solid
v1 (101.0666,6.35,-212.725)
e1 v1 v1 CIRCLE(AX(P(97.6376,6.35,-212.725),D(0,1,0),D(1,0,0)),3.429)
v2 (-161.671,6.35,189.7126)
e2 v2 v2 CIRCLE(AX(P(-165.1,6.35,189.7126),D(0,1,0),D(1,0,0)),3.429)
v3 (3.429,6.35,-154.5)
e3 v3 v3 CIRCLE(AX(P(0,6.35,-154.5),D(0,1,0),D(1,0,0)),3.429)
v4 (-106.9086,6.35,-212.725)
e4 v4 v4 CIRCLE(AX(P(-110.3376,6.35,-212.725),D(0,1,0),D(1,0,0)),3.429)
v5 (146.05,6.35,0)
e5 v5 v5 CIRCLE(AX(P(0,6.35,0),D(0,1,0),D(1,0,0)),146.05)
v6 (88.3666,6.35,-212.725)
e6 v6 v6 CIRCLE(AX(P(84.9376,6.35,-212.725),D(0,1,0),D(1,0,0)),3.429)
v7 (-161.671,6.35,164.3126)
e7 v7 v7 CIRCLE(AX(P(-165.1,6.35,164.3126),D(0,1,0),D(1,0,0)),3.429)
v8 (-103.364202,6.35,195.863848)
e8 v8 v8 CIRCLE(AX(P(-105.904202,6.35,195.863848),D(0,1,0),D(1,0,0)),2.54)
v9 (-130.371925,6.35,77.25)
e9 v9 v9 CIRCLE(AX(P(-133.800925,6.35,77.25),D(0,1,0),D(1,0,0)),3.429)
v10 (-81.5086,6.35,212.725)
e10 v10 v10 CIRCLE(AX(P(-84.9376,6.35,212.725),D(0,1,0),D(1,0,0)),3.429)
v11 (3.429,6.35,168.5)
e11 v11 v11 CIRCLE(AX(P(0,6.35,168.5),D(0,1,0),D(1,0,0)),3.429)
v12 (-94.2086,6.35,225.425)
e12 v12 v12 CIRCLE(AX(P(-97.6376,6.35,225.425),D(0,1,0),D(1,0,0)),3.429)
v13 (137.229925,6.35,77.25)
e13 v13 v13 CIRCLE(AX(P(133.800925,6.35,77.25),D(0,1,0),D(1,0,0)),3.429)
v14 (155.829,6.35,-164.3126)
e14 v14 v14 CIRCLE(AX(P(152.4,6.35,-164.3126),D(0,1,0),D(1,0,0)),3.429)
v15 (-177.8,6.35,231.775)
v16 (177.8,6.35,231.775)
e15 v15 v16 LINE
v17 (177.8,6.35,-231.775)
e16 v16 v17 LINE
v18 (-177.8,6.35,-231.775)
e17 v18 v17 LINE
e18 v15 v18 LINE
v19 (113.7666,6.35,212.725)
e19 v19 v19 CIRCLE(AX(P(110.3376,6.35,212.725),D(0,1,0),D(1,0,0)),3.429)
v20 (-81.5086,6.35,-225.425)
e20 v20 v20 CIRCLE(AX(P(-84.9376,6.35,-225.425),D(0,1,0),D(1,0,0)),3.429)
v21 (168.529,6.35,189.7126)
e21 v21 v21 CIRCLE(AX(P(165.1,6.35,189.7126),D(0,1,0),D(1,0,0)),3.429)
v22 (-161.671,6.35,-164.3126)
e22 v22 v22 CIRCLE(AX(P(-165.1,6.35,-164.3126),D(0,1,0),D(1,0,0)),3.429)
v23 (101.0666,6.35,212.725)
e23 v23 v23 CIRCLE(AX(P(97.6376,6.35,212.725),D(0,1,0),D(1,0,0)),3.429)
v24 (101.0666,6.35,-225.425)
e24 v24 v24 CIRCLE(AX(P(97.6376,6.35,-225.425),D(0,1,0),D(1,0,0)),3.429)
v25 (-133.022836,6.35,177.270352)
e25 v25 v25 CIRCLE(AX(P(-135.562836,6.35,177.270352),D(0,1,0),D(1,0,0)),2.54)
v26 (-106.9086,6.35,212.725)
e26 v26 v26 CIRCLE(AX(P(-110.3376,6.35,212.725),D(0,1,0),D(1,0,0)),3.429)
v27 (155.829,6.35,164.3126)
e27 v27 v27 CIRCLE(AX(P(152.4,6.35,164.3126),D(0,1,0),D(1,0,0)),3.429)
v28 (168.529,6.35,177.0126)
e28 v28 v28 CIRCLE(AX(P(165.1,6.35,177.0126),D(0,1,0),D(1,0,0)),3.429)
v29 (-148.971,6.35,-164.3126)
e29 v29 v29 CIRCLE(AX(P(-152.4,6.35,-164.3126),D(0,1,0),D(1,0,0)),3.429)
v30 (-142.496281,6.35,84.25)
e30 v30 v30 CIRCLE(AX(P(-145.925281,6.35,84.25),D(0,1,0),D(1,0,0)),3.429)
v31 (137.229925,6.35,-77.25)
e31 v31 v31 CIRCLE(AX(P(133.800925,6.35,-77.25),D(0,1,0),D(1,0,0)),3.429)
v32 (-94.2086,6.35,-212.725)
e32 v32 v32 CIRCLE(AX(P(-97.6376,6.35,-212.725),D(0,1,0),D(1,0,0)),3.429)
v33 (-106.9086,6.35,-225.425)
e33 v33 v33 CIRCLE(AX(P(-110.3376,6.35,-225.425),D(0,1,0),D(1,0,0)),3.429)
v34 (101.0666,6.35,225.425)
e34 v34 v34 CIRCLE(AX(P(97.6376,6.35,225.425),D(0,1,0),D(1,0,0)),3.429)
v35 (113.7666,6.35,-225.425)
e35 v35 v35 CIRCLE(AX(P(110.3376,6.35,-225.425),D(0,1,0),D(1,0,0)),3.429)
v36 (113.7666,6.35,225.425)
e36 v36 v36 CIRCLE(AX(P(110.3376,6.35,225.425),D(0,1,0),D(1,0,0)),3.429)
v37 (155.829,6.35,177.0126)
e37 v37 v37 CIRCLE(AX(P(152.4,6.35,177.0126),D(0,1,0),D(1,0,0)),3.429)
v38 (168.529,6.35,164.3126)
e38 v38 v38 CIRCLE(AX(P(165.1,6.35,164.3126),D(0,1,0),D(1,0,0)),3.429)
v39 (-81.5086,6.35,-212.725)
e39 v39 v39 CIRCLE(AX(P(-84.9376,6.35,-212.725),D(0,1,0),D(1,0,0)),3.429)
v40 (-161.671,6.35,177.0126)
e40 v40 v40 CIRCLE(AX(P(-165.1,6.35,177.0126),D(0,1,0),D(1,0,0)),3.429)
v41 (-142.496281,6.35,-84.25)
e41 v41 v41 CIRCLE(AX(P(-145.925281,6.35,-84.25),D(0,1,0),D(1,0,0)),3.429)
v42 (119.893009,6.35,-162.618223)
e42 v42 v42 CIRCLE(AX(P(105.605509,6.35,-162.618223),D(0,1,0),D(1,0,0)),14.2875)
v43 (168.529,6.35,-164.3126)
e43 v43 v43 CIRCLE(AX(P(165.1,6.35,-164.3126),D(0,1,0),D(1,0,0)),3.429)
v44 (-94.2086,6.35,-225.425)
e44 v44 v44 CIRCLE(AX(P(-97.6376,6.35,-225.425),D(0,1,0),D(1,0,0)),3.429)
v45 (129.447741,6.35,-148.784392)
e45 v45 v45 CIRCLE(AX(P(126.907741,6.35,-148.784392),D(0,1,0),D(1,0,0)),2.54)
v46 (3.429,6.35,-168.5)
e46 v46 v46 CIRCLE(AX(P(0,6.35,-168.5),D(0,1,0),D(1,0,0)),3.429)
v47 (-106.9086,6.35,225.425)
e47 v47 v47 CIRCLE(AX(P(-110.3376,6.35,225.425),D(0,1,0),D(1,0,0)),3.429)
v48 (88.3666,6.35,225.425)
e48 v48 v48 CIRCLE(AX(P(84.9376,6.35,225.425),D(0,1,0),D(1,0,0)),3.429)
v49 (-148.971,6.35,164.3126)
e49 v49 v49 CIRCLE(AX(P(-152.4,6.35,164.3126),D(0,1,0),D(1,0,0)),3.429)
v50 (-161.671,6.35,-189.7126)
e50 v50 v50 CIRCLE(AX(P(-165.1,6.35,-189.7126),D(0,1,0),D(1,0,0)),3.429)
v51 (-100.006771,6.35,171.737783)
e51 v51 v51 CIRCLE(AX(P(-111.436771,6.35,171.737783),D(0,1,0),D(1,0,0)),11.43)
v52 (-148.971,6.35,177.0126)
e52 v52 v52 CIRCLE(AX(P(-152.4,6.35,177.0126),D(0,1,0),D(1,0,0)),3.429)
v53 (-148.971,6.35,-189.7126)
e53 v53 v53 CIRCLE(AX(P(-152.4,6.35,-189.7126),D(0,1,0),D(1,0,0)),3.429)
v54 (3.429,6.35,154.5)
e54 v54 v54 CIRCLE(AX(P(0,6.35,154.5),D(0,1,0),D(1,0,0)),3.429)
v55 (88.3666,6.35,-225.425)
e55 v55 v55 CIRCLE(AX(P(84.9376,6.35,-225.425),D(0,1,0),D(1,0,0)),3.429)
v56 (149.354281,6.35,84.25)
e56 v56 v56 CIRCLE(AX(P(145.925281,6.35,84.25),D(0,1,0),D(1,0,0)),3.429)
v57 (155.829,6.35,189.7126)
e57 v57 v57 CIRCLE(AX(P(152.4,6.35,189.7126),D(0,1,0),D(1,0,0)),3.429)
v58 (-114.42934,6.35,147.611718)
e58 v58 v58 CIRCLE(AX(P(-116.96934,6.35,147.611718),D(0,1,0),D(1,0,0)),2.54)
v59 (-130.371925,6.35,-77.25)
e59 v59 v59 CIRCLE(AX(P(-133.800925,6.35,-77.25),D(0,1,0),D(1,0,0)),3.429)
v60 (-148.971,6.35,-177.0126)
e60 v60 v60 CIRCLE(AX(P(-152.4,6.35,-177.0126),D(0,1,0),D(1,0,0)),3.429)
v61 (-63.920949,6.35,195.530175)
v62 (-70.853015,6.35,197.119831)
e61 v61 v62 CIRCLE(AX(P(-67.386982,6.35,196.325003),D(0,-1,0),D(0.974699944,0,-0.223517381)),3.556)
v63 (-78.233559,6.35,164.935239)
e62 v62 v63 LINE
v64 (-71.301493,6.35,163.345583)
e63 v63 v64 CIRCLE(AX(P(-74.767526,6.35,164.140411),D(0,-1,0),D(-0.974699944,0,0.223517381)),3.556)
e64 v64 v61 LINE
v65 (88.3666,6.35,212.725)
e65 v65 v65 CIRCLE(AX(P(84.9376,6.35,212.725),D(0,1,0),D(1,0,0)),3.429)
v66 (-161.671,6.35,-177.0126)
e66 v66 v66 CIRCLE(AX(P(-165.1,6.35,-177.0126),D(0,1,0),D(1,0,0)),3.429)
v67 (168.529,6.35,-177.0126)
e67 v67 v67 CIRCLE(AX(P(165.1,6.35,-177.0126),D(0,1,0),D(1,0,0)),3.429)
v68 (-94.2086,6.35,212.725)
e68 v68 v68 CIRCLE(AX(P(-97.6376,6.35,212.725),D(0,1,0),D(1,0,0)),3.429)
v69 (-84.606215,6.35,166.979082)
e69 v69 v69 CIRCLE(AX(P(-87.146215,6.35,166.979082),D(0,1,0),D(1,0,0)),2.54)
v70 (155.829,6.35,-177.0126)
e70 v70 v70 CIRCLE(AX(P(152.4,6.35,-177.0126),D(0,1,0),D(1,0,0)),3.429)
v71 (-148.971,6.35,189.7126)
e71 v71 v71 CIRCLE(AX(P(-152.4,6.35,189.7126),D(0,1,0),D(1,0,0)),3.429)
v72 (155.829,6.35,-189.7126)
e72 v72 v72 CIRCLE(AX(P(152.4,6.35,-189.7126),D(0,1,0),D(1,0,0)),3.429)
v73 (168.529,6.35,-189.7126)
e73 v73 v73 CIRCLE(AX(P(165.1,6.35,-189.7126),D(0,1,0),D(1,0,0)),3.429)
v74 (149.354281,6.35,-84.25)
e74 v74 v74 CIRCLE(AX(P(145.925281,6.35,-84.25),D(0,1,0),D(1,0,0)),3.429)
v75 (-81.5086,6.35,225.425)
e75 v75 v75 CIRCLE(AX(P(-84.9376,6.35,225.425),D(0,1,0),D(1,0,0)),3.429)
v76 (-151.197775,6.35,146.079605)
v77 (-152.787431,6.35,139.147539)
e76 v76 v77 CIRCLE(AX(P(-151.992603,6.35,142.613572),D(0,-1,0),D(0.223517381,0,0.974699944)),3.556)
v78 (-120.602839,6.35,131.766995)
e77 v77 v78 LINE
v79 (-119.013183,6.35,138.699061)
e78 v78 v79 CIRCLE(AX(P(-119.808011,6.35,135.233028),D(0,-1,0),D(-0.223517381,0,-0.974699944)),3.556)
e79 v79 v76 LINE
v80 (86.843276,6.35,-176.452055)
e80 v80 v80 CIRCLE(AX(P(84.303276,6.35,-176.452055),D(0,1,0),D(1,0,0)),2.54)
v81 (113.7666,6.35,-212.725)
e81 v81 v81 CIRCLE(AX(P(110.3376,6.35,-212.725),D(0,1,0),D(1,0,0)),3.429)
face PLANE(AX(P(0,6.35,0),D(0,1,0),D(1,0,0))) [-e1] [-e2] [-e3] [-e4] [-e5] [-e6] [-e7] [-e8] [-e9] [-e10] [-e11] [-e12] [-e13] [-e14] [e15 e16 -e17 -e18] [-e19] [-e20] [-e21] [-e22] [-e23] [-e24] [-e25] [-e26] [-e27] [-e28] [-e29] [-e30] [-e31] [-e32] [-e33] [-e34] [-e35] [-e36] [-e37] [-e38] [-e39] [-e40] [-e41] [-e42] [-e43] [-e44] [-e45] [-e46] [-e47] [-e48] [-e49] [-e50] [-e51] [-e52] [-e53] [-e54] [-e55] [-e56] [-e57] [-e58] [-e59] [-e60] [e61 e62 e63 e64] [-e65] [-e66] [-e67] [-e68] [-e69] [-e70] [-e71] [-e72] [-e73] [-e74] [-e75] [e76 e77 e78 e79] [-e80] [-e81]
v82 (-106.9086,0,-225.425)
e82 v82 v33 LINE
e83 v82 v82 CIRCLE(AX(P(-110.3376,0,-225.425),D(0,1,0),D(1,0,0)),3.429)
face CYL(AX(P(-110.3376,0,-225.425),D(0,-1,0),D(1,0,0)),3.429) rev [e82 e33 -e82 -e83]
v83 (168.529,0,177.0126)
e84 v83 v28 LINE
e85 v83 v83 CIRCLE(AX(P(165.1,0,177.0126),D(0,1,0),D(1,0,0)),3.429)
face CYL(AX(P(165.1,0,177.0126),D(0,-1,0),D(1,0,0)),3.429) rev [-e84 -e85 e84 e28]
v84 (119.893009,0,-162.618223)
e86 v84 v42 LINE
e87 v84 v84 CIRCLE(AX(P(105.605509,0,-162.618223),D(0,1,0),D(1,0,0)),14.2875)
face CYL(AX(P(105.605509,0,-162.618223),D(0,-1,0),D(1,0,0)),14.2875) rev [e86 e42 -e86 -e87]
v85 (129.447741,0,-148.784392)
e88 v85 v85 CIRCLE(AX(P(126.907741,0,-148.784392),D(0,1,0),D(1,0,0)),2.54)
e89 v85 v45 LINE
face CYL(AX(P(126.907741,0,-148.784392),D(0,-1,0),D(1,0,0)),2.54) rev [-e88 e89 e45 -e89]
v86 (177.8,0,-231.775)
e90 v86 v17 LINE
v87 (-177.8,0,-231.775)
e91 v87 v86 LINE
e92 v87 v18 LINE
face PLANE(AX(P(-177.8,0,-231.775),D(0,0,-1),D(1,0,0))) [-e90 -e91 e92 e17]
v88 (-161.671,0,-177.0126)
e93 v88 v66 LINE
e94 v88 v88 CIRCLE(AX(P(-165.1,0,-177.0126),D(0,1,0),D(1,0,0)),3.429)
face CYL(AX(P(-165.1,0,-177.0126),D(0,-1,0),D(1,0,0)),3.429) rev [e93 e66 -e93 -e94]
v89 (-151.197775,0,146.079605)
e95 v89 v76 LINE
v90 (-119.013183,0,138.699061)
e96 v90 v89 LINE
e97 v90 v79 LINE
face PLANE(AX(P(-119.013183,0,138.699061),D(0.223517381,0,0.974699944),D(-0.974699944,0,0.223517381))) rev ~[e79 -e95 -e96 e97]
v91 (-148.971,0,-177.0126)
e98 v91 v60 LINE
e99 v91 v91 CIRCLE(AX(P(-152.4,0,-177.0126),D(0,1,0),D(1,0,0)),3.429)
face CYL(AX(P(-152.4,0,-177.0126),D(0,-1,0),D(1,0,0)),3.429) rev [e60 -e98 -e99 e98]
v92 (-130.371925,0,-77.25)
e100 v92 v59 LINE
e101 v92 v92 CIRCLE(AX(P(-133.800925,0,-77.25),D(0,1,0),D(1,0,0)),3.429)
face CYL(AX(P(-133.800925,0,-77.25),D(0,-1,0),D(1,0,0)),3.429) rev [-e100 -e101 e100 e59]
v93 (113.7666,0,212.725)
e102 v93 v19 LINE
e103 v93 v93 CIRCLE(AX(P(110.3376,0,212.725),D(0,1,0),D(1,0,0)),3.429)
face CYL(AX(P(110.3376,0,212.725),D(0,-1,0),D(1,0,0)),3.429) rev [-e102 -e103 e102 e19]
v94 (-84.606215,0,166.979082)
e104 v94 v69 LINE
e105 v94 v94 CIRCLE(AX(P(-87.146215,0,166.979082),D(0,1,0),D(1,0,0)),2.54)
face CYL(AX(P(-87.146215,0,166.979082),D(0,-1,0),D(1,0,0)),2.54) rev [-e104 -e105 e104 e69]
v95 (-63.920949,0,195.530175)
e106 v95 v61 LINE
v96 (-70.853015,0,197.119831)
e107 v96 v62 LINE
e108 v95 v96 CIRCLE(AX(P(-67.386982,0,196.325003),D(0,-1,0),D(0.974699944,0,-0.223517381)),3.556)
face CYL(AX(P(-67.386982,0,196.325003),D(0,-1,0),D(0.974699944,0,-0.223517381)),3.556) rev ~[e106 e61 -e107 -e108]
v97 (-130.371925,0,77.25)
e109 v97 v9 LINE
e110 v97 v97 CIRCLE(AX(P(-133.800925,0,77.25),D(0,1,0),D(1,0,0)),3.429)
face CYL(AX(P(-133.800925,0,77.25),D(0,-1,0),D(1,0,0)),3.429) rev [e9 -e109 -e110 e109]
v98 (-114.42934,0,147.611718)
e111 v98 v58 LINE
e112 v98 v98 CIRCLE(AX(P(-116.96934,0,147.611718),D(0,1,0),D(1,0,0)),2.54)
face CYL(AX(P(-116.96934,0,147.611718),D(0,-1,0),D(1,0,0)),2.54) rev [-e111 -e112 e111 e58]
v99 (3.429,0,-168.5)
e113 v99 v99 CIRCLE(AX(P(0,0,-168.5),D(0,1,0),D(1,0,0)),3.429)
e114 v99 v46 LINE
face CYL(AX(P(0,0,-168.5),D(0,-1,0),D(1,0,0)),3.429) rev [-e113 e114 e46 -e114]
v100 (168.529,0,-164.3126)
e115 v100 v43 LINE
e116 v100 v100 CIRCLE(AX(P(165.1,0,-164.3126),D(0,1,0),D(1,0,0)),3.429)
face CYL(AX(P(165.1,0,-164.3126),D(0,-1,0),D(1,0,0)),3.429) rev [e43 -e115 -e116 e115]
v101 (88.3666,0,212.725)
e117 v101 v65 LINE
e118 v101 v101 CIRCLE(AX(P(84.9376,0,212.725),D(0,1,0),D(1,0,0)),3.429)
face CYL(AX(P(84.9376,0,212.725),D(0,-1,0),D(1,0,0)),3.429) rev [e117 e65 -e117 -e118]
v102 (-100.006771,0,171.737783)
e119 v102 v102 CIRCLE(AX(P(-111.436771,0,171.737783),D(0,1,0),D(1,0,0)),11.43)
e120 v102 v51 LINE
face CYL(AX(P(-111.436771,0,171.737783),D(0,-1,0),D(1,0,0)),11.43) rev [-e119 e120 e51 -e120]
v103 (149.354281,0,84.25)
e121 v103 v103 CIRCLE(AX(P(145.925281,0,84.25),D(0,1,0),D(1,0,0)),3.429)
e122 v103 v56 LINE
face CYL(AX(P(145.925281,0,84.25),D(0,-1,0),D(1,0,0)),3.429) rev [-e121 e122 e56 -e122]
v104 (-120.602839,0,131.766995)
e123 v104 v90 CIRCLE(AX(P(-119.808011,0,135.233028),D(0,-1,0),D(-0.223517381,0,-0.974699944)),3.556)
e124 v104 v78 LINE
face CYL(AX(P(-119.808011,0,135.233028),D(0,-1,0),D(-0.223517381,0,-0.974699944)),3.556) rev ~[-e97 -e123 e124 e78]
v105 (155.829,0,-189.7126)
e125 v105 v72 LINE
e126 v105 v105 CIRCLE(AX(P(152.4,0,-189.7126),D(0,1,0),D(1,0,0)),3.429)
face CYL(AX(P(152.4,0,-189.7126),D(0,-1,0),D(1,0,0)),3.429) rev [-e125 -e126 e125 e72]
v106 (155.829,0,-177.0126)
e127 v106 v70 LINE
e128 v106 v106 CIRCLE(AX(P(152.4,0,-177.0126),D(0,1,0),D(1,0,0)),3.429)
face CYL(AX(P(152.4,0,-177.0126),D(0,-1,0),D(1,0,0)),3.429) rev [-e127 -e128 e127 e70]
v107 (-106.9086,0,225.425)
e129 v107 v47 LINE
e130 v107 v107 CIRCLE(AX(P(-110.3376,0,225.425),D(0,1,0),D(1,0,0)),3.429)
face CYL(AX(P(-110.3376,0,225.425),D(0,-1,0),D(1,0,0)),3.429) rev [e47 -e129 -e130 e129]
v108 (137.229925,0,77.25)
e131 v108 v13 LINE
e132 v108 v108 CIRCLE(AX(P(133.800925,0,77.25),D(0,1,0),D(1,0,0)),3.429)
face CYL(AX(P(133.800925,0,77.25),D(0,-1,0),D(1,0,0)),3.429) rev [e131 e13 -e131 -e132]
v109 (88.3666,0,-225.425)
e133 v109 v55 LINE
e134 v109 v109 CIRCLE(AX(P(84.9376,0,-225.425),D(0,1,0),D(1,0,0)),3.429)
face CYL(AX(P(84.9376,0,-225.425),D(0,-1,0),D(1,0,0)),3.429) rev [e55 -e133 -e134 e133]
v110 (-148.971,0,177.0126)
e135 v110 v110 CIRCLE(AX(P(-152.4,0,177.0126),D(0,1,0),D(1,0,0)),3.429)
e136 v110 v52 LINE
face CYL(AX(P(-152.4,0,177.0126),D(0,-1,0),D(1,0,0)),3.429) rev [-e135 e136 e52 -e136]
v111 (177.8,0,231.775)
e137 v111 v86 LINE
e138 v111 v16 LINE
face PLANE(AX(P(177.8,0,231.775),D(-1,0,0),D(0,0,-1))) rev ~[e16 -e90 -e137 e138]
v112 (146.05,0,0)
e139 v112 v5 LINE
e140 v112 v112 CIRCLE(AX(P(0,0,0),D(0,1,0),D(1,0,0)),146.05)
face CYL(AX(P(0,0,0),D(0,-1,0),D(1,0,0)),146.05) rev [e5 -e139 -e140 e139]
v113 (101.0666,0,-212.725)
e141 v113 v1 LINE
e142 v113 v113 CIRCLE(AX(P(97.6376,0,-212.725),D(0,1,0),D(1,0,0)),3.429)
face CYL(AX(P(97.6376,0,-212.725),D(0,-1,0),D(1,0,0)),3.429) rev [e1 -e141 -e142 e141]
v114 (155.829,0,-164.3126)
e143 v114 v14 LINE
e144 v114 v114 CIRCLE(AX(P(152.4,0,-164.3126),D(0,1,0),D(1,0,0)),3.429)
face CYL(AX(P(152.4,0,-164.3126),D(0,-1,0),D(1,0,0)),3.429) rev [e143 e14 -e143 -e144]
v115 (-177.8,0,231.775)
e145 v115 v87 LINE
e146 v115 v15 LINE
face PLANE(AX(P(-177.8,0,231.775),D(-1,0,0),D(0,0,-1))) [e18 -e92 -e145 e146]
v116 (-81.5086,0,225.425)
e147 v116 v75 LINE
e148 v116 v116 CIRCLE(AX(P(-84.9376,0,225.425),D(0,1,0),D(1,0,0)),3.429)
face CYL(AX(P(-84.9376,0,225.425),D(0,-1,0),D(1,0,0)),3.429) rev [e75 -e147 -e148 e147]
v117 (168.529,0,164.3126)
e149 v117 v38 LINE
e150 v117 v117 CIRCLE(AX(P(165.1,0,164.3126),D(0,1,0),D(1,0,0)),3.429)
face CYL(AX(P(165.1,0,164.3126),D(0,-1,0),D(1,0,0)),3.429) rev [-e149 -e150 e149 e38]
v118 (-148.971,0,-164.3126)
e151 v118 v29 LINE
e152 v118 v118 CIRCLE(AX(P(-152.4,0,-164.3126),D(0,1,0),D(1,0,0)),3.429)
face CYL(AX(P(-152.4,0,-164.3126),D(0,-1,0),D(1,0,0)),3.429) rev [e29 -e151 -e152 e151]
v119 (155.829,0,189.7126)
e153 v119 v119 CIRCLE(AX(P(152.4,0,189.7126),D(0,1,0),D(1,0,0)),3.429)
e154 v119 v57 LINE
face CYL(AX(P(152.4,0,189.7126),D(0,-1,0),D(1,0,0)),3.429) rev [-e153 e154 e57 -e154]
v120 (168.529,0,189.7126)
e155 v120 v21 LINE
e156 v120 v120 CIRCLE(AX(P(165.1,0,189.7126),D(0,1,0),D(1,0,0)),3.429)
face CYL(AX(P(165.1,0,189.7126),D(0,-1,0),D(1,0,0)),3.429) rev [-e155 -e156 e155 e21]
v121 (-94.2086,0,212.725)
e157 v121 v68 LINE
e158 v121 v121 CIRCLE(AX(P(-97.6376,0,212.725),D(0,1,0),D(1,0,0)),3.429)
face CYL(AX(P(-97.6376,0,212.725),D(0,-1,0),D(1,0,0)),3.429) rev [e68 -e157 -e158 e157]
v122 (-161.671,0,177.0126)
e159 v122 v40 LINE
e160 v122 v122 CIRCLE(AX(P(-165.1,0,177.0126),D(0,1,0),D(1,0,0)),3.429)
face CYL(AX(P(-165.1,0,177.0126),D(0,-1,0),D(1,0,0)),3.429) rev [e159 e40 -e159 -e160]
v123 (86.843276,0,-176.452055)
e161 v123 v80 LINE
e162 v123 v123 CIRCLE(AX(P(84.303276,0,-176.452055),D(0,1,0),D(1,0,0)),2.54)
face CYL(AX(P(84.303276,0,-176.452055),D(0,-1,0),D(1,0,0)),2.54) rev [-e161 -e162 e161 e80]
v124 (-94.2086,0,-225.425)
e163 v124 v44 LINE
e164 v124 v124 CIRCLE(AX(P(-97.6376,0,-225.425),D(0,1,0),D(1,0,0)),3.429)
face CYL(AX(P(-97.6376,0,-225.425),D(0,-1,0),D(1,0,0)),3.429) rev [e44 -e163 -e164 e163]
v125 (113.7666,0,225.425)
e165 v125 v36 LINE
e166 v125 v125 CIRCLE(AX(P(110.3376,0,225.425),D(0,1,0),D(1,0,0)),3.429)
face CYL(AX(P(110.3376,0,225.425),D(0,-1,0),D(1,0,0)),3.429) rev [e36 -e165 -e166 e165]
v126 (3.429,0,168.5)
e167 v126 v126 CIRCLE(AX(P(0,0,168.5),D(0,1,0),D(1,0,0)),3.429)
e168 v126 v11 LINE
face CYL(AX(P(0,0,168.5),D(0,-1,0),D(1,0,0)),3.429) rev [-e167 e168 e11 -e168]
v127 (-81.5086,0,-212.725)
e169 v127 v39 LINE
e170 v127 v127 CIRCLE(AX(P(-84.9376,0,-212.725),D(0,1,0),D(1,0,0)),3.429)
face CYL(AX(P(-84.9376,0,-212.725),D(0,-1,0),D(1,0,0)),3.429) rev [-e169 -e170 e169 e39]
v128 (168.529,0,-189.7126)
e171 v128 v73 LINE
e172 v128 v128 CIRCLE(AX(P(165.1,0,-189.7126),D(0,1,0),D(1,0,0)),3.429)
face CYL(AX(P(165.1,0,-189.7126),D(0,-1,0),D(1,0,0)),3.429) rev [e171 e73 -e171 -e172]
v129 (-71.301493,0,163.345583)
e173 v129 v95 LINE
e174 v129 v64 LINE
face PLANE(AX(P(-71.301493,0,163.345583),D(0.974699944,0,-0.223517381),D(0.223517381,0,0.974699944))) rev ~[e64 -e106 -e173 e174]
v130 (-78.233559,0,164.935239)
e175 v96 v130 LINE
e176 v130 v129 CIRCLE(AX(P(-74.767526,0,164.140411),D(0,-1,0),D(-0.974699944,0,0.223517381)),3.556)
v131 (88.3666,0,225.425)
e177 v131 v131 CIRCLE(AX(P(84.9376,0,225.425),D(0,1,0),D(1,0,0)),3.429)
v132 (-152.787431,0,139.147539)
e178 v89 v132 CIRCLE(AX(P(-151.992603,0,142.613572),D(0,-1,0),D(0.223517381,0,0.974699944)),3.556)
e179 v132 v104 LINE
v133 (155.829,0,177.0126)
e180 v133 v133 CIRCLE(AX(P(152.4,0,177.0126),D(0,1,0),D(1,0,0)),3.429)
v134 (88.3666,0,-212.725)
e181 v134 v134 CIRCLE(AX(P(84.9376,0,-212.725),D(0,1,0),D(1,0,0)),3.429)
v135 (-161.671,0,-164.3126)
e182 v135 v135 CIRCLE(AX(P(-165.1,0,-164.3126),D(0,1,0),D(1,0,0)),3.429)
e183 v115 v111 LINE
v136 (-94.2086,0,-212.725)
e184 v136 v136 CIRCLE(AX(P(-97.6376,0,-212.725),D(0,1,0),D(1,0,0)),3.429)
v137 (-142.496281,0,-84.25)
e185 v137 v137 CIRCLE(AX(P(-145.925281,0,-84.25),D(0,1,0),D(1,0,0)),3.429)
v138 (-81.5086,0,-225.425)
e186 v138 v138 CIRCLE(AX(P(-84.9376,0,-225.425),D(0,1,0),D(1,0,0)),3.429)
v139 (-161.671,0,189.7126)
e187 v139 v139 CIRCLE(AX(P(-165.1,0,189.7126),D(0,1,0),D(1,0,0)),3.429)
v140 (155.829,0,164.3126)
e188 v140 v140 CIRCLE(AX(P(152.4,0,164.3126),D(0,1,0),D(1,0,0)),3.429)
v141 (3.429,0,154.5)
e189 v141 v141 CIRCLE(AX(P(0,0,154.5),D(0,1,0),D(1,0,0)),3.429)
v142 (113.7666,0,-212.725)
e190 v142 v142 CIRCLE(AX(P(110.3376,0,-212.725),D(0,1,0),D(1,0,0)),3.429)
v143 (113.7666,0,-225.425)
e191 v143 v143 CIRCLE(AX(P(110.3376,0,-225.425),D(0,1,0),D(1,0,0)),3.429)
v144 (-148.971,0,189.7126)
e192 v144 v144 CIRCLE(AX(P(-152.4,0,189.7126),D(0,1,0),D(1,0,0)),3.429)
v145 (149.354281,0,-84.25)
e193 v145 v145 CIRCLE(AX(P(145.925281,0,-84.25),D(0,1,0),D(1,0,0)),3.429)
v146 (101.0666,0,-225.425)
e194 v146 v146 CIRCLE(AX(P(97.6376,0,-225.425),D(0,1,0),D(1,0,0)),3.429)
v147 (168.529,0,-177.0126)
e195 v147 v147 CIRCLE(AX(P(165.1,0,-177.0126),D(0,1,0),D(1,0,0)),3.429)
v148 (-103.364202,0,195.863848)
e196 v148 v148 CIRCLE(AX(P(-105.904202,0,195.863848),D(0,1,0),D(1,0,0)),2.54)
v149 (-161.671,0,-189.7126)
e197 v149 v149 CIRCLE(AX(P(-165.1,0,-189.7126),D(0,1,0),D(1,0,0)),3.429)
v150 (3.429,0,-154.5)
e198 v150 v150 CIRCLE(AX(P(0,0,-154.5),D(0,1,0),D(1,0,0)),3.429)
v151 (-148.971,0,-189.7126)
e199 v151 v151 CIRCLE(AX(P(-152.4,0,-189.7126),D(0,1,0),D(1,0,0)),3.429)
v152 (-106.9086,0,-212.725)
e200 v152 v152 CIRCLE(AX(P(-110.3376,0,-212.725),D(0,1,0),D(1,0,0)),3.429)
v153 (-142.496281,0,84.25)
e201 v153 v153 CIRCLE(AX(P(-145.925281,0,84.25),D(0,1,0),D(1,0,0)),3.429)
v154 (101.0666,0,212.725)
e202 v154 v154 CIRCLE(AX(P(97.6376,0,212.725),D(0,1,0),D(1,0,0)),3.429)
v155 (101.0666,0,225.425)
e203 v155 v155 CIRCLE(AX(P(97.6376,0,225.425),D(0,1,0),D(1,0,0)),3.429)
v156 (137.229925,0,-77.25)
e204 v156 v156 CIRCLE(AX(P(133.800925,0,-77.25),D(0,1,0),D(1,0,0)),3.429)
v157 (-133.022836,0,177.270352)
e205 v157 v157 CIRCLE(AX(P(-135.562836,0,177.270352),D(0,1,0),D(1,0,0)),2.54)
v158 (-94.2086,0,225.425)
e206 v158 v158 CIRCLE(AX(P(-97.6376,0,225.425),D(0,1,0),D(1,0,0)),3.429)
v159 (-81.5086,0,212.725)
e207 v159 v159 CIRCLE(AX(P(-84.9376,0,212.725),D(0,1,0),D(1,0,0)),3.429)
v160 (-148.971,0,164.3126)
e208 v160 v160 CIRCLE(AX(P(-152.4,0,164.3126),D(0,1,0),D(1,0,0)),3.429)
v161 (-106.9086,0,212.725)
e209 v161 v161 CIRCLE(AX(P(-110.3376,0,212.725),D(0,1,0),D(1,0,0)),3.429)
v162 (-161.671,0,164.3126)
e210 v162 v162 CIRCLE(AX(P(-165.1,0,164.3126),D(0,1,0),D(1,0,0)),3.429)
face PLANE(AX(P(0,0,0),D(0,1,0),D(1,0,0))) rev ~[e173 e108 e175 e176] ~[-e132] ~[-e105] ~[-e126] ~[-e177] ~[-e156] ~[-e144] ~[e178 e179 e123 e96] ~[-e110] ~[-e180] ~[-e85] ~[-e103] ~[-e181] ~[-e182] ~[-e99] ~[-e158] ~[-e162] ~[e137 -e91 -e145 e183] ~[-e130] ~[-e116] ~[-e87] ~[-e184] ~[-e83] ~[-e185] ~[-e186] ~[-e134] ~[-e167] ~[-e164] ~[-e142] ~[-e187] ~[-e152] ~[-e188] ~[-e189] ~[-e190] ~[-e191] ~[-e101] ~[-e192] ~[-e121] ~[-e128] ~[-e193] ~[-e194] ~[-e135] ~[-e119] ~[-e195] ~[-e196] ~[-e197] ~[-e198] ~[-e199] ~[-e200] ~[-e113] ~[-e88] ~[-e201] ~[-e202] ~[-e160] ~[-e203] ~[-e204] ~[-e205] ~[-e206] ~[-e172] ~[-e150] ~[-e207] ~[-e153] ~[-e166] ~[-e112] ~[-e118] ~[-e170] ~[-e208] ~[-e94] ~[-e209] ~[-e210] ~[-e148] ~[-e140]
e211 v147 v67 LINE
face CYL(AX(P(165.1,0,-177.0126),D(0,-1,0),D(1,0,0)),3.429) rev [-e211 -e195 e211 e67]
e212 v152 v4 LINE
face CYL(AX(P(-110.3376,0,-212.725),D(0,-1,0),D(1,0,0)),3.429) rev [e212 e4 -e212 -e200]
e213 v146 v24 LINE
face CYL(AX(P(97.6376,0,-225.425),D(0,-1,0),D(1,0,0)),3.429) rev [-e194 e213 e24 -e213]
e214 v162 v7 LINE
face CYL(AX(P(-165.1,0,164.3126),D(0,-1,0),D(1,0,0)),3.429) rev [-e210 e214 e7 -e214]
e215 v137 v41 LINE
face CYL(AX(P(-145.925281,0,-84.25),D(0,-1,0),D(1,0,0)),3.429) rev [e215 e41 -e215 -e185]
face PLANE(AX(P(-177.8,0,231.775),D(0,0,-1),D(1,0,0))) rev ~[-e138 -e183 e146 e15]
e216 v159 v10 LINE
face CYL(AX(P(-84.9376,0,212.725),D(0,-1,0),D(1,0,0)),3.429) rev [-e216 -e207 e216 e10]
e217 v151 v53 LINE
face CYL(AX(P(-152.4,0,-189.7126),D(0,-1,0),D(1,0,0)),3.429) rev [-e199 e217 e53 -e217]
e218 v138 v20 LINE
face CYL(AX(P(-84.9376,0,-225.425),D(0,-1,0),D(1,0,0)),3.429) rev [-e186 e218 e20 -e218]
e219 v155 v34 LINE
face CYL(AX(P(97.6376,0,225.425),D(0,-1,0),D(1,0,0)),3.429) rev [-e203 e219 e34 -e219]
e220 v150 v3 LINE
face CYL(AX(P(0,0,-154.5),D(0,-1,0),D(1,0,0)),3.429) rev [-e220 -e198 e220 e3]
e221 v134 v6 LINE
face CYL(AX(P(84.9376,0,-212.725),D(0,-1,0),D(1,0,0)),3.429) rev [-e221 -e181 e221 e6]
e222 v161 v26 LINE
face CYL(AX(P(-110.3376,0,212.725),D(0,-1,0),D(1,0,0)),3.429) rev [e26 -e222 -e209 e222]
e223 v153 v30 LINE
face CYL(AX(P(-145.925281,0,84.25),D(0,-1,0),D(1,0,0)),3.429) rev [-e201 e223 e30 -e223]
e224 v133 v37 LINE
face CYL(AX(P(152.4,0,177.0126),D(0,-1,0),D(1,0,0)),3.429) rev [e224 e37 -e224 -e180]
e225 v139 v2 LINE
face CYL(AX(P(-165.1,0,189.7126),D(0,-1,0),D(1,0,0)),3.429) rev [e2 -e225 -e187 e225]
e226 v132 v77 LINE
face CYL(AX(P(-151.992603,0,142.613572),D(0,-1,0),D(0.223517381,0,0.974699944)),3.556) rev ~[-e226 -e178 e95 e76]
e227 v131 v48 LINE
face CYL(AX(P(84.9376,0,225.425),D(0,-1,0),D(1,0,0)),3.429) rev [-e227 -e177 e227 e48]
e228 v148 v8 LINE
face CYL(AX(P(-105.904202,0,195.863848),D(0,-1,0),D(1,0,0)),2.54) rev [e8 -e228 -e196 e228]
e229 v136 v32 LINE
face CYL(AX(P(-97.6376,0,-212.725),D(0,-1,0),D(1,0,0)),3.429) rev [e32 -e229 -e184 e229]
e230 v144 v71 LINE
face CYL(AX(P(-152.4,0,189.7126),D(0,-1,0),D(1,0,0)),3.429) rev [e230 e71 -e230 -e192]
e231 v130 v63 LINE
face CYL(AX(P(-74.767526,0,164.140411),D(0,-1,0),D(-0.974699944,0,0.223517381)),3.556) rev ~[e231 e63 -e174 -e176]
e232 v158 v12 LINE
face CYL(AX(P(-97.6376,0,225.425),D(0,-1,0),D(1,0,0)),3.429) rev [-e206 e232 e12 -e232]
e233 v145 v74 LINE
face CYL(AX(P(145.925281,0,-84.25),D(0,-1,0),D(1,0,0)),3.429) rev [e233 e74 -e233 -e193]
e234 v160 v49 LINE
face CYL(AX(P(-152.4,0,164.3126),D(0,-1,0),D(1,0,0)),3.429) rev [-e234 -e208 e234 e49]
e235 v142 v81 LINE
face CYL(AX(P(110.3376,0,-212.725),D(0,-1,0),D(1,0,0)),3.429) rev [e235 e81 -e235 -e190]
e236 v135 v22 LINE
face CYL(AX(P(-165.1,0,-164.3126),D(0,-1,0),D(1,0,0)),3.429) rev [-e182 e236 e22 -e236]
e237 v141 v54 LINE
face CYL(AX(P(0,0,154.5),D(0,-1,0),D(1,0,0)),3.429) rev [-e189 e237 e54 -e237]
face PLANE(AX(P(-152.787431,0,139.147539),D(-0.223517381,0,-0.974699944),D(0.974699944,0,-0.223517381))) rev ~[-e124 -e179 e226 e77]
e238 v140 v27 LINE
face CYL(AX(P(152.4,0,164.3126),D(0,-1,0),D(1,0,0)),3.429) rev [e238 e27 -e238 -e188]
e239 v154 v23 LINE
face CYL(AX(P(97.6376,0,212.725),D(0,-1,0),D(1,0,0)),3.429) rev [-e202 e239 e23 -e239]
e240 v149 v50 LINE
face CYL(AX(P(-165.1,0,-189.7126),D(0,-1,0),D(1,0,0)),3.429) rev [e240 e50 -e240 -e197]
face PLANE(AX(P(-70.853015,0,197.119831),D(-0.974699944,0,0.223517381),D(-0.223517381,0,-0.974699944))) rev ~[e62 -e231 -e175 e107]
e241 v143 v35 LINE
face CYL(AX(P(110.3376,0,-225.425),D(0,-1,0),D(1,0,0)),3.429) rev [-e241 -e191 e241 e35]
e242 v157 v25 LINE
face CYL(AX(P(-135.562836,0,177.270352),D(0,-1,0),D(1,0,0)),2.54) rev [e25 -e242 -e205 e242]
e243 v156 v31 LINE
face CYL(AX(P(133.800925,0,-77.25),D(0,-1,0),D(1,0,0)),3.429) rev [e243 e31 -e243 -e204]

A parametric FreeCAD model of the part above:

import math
import FreeCAD as App
import Part
import Sketcher
Q = App.Units.Quantity


def add_polygon(sketch, points):
    """Adds a closed chain of lines whose ends are joined by coincident constraints."""
    first, n = sketch.GeometryCount, len(points)
    for a, b in zip(points, points[1:] + points[:1]):
        sketch.addGeometry(Part.LineSegment(App.Vector(*a, 0), App.Vector(*b, 0)), False)
    for i in range(n):
        sketch.addConstraint(Sketcher.Constraint("Coincident", first + i, 2, first + (i + 1) % n, 1))

doc = App.newDocument("Part")
params = doc.addObject("Spreadsheet::Sheet", "Params")
for row, (alias, value) in enumerate([
    ("sketch1_diameter", "0.2 in"),
    ("sketch1_diameter2", "0.9 in"),
    ("sketch1_diameter3", "11.5 in"),
    ("sketch1_diameter4", "0.27 in"),
    ("sketch1_width", "14 in"),
    ("pad1_length", "0.25 in"),
], start=1):
    params.set(f"A{row}", alias)
    params.set(f"B{row}", "=" + value)
    params.setAlias(f"B{row}", alias)

body = doc.addObject("PartDesign::Body", "Body")

# Sketch on XZ plane
sketch1 = body.newObject("Sketcher::SketchObject", "Sketch")
sketch1.AttachmentSupport = (doc.getObject("XZ_Plane"), [""])
sketch1.MapMode = "FlatFace"
add_polygon(sketch1, [(-177.8, -231.8), (-177.8, 231.8), (177.8, 231.8), (177.8, -231.8)])  # lines 0-3
sketch1.addGeometry(Part.Circle(App.Vector(-165.1, 189.7, 0), App.Vector(0, 0, 1), 3.4), False)  # 4
sketch1.addGeometry(Part.Circle(App.Vector(-152.4, 189.7, 0), App.Vector(0, 0, 1), 3.4), False)  # 5
sketch1.addGeometry(Part.Circle(App.Vector(-165.1, 177, 0), App.Vector(0, 0, 1), 3.4), False)  # 6
sketch1.addGeometry(Part.Circle(App.Vector(-152.4, 177, 0), App.Vector(0, 0, 1), 3.4), False)  # 7
sketch1.addGeometry(Part.Circle(App.Vector(-135.6, 177.3, 0), App.Vector(0, 0, 1), 2.5), False)  # 8
sketch1.addGeometry(Part.Circle(App.Vector(-110.3, 225.4, 0), App.Vector(0, 0, 1), 3.4), False)  # 9
sketch1.addGeometry(Part.Circle(App.Vector(-110.3, 212.7, 0), App.Vector(0, 0, 1), 3.4), False)  # 10
sketch1.addGeometry(Part.Circle(App.Vector(-97.6, 225.4, 0), App.Vector(0, 0, 1), 3.4), False)  # 11
sketch1.addGeometry(Part.Circle(App.Vector(-84.9, 225.4, 0), App.Vector(0, 0, 1), 3.4), False)  # 12
sketch1.addGeometry(Part.Circle(App.Vector(-97.6, 212.7, 0), App.Vector(0, 0, 1), 3.4), False)  # 13
sketch1.addGeometry(Part.Circle(App.Vector(-84.9, 212.7, 0), App.Vector(0, 0, 1), 3.4), False)  # 14
sketch1.addGeometry(Part.Circle(App.Vector(-105.9, 195.9, 0), App.Vector(0, 0, 1), 2.5), False)  # 15
sketch1.addGeometry(Part.Circle(App.Vector(-111.4, 171.7, 0), App.Vector(0, 0, 1), 11.4), False)  # 16
sketch1.addGeometry(Part.Circle(App.Vector(-165.1, 164.3, 0), App.Vector(0, 0, 1), 3.4), False)  # 17
sketch1.addGeometry(Part.Circle(App.Vector(-152.4, 164.3, 0), App.Vector(0, 0, 1), 3.4), False)  # 18
sketch1.addGeometry(Part.ArcOfCircle(Part.Circle(App.Vector(-119.8, 135.2, 0), App.Vector(0, 0, 1), 3.6), math.radians(-103), math.radians(77)), False)  # 19
sketch1.addGeometry(Part.LineSegment(App.Vector(-119, 138.7, 0), App.Vector(-151.2, 146.1, 0)), False)  # 20
sketch1.addGeometry(Part.ArcOfCircle(Part.Circle(App.Vector(-152, 142.6, 0), App.Vector(0, 0, 1), 3.6), math.radians(77), math.radians(257)), False)  # 21
sketch1.addGeometry(Part.LineSegment(App.Vector(-152.8, 139.1, 0), App.Vector(-120.6, 131.8, 0)), False)  # 22
sketch1.addGeometry(Part.Circle(App.Vector(-117, 147.6, 0), App.Vector(0, 0, 1), 2.5), False)  # 23
sketch1.addGeometry(Part.Circle(App.Vector(-87.1, 167, 0), App.Vector(0, 0, 1), 2.5), False)  # 24
sketch1.addGeometry(Part.ArcOfCircle(Part.Circle(App.Vector(-74.8, 164.1, 0), App.Vector(0, 0, 1), 3.6), math.radians(167), math.radians(347)), False)  # 25
sketch1.addGeometry(Part.LineSegment(App.Vector(-71.3, 163.3, 0), App.Vector(-63.9, 195.5, 0)), False)  # 26
sketch1.addGeometry(Part.ArcOfCircle(Part.Circle(App.Vector(-67.4, 196.3, 0), App.Vector(0, 0, 1), 3.6), math.radians(-13), math.radians(167)), False)  # 27
sketch1.addGeometry(Part.LineSegment(App.Vector(-70.9, 197.1, 0), App.Vector(-78.2, 164.9, 0)), False)  # 28
sketch1.addGeometry(Part.Circle(App.Vector(-145.9, 84.2, 0), App.Vector(0, 0, 1), 3.4), False)  # 29
sketch1.addGeometry(Part.Circle(App.Vector(-133.8, 77.2, 0), App.Vector(0, 0, 1), 3.4), False)  # 30
sketch1.addGeometry(Part.Circle(App.Vector(0, 168.5, 0), App.Vector(0, 0, 1), 3.4), False)  # 31
sketch1.addGeometry(Part.Circle(App.Vector(0, 154.5, 0), App.Vector(0, 0, 1), 3.4), False)  # 32
sketch1.addGeometry(Part.Circle(App.Vector(84.9, 225.4, 0), App.Vector(0, 0, 1), 3.4), False)  # 33
sketch1.addGeometry(Part.Circle(App.Vector(97.6, 225.4, 0), App.Vector(0, 0, 1), 3.4), False)  # 34
sketch1.addGeometry(Part.Circle(App.Vector(84.9, 212.7, 0), App.Vector(0, 0, 1), 3.4), False)  # 35
sketch1.addGeometry(Part.Circle(App.Vector(97.6, 212.7, 0), App.Vector(0, 0, 1), 3.4), False)  # 36
sketch1.addGeometry(Part.Circle(App.Vector(110.3, 225.4, 0), App.Vector(0, 0, 1), 3.4), False)  # 37
sketch1.addGeometry(Part.Circle(App.Vector(110.3, 212.7, 0), App.Vector(0, 0, 1), 3.4), False)  # 38
sketch1.addGeometry(Part.Circle(App.Vector(152.4, 189.7, 0), App.Vector(0, 0, 1), 3.4), False)  # 39
sketch1.addGeometry(Part.Circle(App.Vector(165.1, 189.7, 0), App.Vector(0, 0, 1), 3.4), False)  # 40
sketch1.addGeometry(Part.Circle(App.Vector(152.4, 177, 0), App.Vector(0, 0, 1), 3.4), False)  # 41
sketch1.addGeometry(Part.Circle(App.Vector(165.1, 177, 0), App.Vector(0, 0, 1), 3.4), False)  # 42
sketch1.addGeometry(Part.Circle(App.Vector(152.4, 164.3, 0), App.Vector(0, 0, 1), 3.4), False)  # 43
sketch1.addGeometry(Part.Circle(App.Vector(165.1, 164.3, 0), App.Vector(0, 0, 1), 3.4), False)  # 44
sketch1.addGeometry(Part.Circle(App.Vector(133.8, 77.2, 0), App.Vector(0, 0, 1), 3.4), False)  # 45
sketch1.addGeometry(Part.Circle(App.Vector(145.9, 84.2, 0), App.Vector(0, 0, 1), 3.4), False)  # 46
sketch1.addGeometry(Part.Circle(App.Vector(-145.9, -84.2, 0), App.Vector(0, 0, 1), 3.4), False)  # 47
sketch1.addGeometry(Part.Circle(App.Vector(-133.8, -77.2, 0), App.Vector(0, 0, 1), 3.4), False)  # 48
sketch1.addGeometry(Part.Circle(App.Vector(-165.1, -164.3, 0), App.Vector(0, 0, 1), 3.4), False)  # 49
sketch1.addGeometry(Part.Circle(App.Vector(-152.4, -164.3, 0), App.Vector(0, 0, 1), 3.4), False)  # 50
sketch1.addGeometry(Part.Circle(App.Vector(-165.1, -177, 0), App.Vector(0, 0, 1), 3.4), False)  # 51
sketch1.addGeometry(Part.Circle(App.Vector(-152.4, -177, 0), App.Vector(0, 0, 1), 3.4), False)  # 52
sketch1.addGeometry(Part.Circle(App.Vector(-165.1, -189.7, 0), App.Vector(0, 0, 1), 3.4), False)  # 53
sketch1.addGeometry(Part.Circle(App.Vector(-152.4, -189.7, 0), App.Vector(0, 0, 1), 3.4), False)  # 54
sketch1.addGeometry(Part.Circle(App.Vector(-110.3, -212.7, 0), App.Vector(0, 0, 1), 3.4), False)  # 55
sketch1.addGeometry(Part.Circle(App.Vector(-110.3, -225.4, 0), App.Vector(0, 0, 1), 3.4), False)  # 56
sketch1.addGeometry(Part.Circle(App.Vector(-97.6, -212.7, 0), App.Vector(0, 0, 1), 3.4), False)  # 57
sketch1.addGeometry(Part.Circle(App.Vector(-84.9, -212.7, 0), App.Vector(0, 0, 1), 3.4), False)  # 58
sketch1.addGeometry(Part.Circle(App.Vector(-97.6, -225.4, 0), App.Vector(0, 0, 1), 3.4), False)  # 59
sketch1.addGeometry(Part.Circle(App.Vector(-84.9, -225.4, 0), App.Vector(0, 0, 1), 3.4), False)  # 60
sketch1.addGeometry(Part.Circle(App.Vector(0, 0, 0), App.Vector(0, 0, 1), 146.1), False)  # 61
sketch1.addGeometry(Part.Circle(App.Vector(133.8, -77.2, 0), App.Vector(0, 0, 1), 3.4), False)  # 62
sketch1.addGeometry(Part.Circle(App.Vector(145.9, -84.2, 0), App.Vector(0, 0, 1), 3.4), False)  # 63
sketch1.addGeometry(Part.Circle(App.Vector(0, -154.5, 0), App.Vector(0, 0, 1), 3.4), False)  # 64
sketch1.addGeometry(Part.Circle(App.Vector(0, -168.5, 0), App.Vector(0, 0, 1), 3.4), False)  # 65
sketch1.addGeometry(Part.Circle(App.Vector(105.6, -162.6, 0), App.Vector(0, 0, 1), 14.3), False)  # 66
sketch1.addGeometry(Part.Circle(App.Vector(126.9, -148.8, 0), App.Vector(0, 0, 1), 2.5), False)  # 67
sketch1.addGeometry(Part.Circle(App.Vector(152.4, -164.3, 0), App.Vector(0, 0, 1), 3.4), False)  # 68
sketch1.addGeometry(Part.Circle(App.Vector(165.1, -164.3, 0), App.Vector(0, 0, 1), 3.4), False)  # 69
sketch1.addGeometry(Part.Circle(App.Vector(84.3, -176.5, 0), App.Vector(0, 0, 1), 2.5), False)  # 70
sketch1.addGeometry(Part.Circle(App.Vector(84.9, -212.7, 0), App.Vector(0, 0, 1), 3.4), False)  # 71
sketch1.addGeometry(Part.Circle(App.Vector(97.6, -212.7, 0), App.Vector(0, 0, 1), 3.4), False)  # 72
sketch1.addGeometry(Part.Circle(App.Vector(84.9, -225.4, 0), App.Vector(0, 0, 1), 3.4), False)  # 73
sketch1.addGeometry(Part.Circle(App.Vector(97.6, -225.4, 0), App.Vector(0, 0, 1), 3.4), False)  # 74
sketch1.addGeometry(Part.Circle(App.Vector(110.3, -212.7, 0), App.Vector(0, 0, 1), 3.4), False)  # 75
sketch1.addGeometry(Part.Circle(App.Vector(110.3, -225.4, 0), App.Vector(0, 0, 1), 3.4), False)  # 76
sketch1.addGeometry(Part.Circle(App.Vector(152.4, -177, 0), App.Vector(0, 0, 1), 3.4), False)  # 77
sketch1.addGeometry(Part.Circle(App.Vector(165.1, -177, 0), App.Vector(0, 0, 1), 3.4), False)  # 78
sketch1.addGeometry(Part.Circle(App.Vector(152.4, -189.7, 0), App.Vector(0, 0, 1), 3.4), False)  # 79
sketch1.addGeometry(Part.Circle(App.Vector(165.1, -189.7, 0), App.Vector(0, 0, 1), 3.4), False)  # 80
sketch1.addConstraint([
    Sketcher.Constraint("Tangent", 19, 2, 20, 1),
    Sketcher.Constraint("Tangent", 20, 2, 21, 1),
    Sketcher.Constraint("Tangent", 21, 2, 22, 1),
    Sketcher.Constraint("Tangent", 22, 2, 19, 1),
    Sketcher.Constraint("Tangent", 25, 2, 26, 1),
    Sketcher.Constraint("Tangent", 26, 2, 27, 1),
    Sketcher.Constraint("Tangent", 27, 2, 28, 1),
    Sketcher.Constraint("Tangent", 28, 2, 25, 1),
    Sketcher.Constraint("Vertical", 0),
    Sketcher.Constraint("Horizontal", 1),
    Sketcher.Constraint("Vertical", 2),
    Sketcher.Constraint("Horizontal", 3),
    Sketcher.Constraint("Coincident", 61, 3, -1, 1),
    Sketcher.Constraint("Equal", 4, 5),
    Sketcher.Constraint("Equal", 5, 6),
    Sketcher.Constraint("Equal", 6, 7),
    Sketcher.Constraint("Equal", 7, 9),
    Sketcher.Constraint("Equal", 9, 10),
    Sketcher.Constraint("Equal", 10, 11),
    Sketcher.Constraint("Equal", 11, 12),
    Sketcher.Constraint("Equal", 12, 13),
    Sketcher.Constraint("Equal", 13, 14),
    Sketcher.Constraint("Equal", 8, 15),
    Sketcher.Constraint("Equal", 14, 17),
    Sketcher.Constraint("Equal", 17, 18),
    Sketcher.Constraint("Equal", 19, 21),
    Sketcher.Constraint("Equal", 15, 23),
    Sketcher.Constraint("Equal", 23, 24),
    Sketcher.Constraint("Equal", 21, 25),
    Sketcher.Constraint("Equal", 25, 27),
    Sketcher.Constraint("Equal", 18, 29),
    Sketcher.Constraint("Equal", 29, 30),
    Sketcher.Constraint("Equal", 30, 31),
    Sketcher.Constraint("Equal", 31, 32),
    Sketcher.Constraint("Equal", 32, 33),
    Sketcher.Constraint("Equal", 33, 34),
    Sketcher.Constraint("Equal", 34, 35),
    Sketcher.Constraint("Equal", 35, 36),
    Sketcher.Constraint("Equal", 36, 37),
    Sketcher.Constraint("Equal", 37, 38),
    Sketcher.Constraint("Equal", 38, 39),
    Sketcher.Constraint("Equal", 39, 40),
    Sketcher.Constraint("Equal", 40, 41),
    Sketcher.Constraint("Equal", 41, 42),
    Sketcher.Constraint("Equal", 42, 43),
    Sketcher.Constraint("Equal", 43, 44),
    Sketcher.Constraint("Equal", 44, 45),
    Sketcher.Constraint("Equal", 45, 46),
    Sketcher.Constraint("Equal", 46, 47),
    Sketcher.Constraint("Equal", 47, 48),
    Sketcher.Constraint("Equal", 48, 49),
    Sketcher.Constraint("Equal", 49, 50),
    Sketcher.Constraint("Equal", 50, 51),
    Sketcher.Constraint("Equal", 51, 52),
    Sketcher.Constraint("Equal", 52, 53),
    Sketcher.Constraint("Equal", 53, 54),
    Sketcher.Constraint("Equal", 54, 55),
    Sketcher.Constraint("Equal", 55, 56),
    Sketcher.Constraint("Equal", 56, 57),
    Sketcher.Constraint("Equal", 57, 58),
    Sketcher.Constraint("Equal", 58, 59),
    Sketcher.Constraint("Equal", 59, 60),
    Sketcher.Constraint("Equal", 60, 62),
    Sketcher.Constraint("Equal", 62, 63),
    Sketcher.Constraint("Equal", 63, 64),
    Sketcher.Constraint("Equal", 64, 65),
    Sketcher.Constraint("Equal", 24, 67),
    Sketcher.Constraint("Equal", 65, 68),
    Sketcher.Constraint("Equal", 68, 69),
    Sketcher.Constraint("Equal", 67, 70),
    Sketcher.Constraint("Equal", 69, 71),
    Sketcher.Constraint("Equal", 71, 72),
    Sketcher.Constraint("Equal", 72, 73),
    Sketcher.Constraint("Equal", 73, 74),
    Sketcher.Constraint("Equal", 74, 75),
    Sketcher.Constraint("Equal", 75, 76),
    Sketcher.Constraint("Equal", 76, 77),
    Sketcher.Constraint("Equal", 77, 78),
    Sketcher.Constraint("Equal", 78, 79),
    Sketcher.Constraint("Equal", 79, 80),
    Sketcher.Constraint("Symmetric", 46, 3, 47, 3, -1, 1),
    Sketcher.Constraint("Symmetric", 45, 3, 48, 3, -1, 1),
    Sketcher.Constraint("Symmetric", 44, 3, 49, 3, -1, 1),
    Sketcher.Constraint("Symmetric", 43, 3, 50, 3, -1, 1),
    Sketcher.Constraint("Symmetric", 42, 3, 51, 3, -1, 1),
    Sketcher.Constraint("Symmetric", 41, 3, 52, 3, -1, 1),
    Sketcher.Constraint("Symmetric", 40, 3, 53, 3, -1, 1),
    Sketcher.Constraint("Symmetric", 39, 3, 54, 3, -1, 1),
    Sketcher.Constraint("Symmetric", 38, 3, 55, 3, -1, 1),
    Sketcher.Constraint("Symmetric", 37, 3, 56, 3, -1, 1),
    Sketcher.Constraint("Symmetric", 36, 3, 57, 3, -1, 1),
    Sketcher.Constraint("Symmetric", 35, 3, 58, 3, -1, 1),
    Sketcher.Constraint("Symmetric", 34, 3, 59, 3, -1, 1),
    Sketcher.Constraint("Symmetric", 33, 3, 60, 3, -1, 1),
    Sketcher.Constraint("Symmetric", 30, 3, 62, 3, -1, 1),
    Sketcher.Constraint("Symmetric", 29, 3, 63, 3, -1, 1),
    Sketcher.Constraint("Symmetric", 32, 3, 64, 3, -1, 1),
    Sketcher.Constraint("Symmetric", 31, 3, 65, 3, -1, 1),
    Sketcher.Constraint("Symmetric", 18, 3, 68, 3, -1, 1),
    Sketcher.Constraint("Symmetric", 17, 3, 69, 3, -1, 1),
    Sketcher.Constraint("Symmetric", 14, 3, 71, 3, -1, 1),
    Sketcher.Constraint("Symmetric", 13, 3, 72, 3, -1, 1),
    Sketcher.Constraint("Symmetric", 12, 3, 73, 3, -1, 1),
    Sketcher.Constraint("Symmetric", 11, 3, 74, 3, -1, 1),
    Sketcher.Constraint("Symmetric", 10, 3, 75, 3, -1, 1),
    Sketcher.Constraint("Symmetric", 9, 3, 76, 3, -1, 1),
    Sketcher.Constraint("Symmetric", 7, 3, 77, 3, -1, 1),
    Sketcher.Constraint("Symmetric", 6, 3, 78, 3, -1, 1),
    Sketcher.Constraint("Symmetric", 5, 3, 79, 3, -1, 1),
    Sketcher.Constraint("Symmetric", 4, 3, 80, 3, -1, 1),
    Sketcher.Constraint("Symmetric", 0, 2, 2, 2, -1, 1),
    Sketcher.Constraint("Symmetric", 12, 3, 33, 3, -2),
    Sketcher.Constraint("Symmetric", 11, 3, 34, 3, -2),
    Sketcher.Constraint("Symmetric", 14, 3, 35, 3, -2),
    Sketcher.Constraint("Symmetric", 13, 3, 36, 3, -2),
    Sketcher.Constraint("Symmetric", 9, 3, 37, 3, -2),
    Sketcher.Constraint("Symmetric", 10, 3, 38, 3, -2),
    Sketcher.Constraint("Symmetric", 5, 3, 39, 3, -2),
    Sketcher.Constraint("Symmetric", 4, 3, 40, 3, -2),
    Sketcher.Constraint("Symmetric", 7, 3, 41, 3, -2),
    Sketcher.Constraint("Symmetric", 6, 3, 42, 3, -2),
    Sketcher.Constraint("Symmetric", 18, 3, 43, 3, -2),
    Sketcher.Constraint("Symmetric", 17, 3, 44, 3, -2),
    Sketcher.Constraint("Symmetric", 30, 3, 45, 3, -2),
    Sketcher.Constraint("Symmetric", 29, 3, 46, 3, -2),
    Sketcher.Constraint("PointOnObject", 31, 3, -2),
    Sketcher.Constraint("PointOnObject", 32, 3, -2),
    Sketcher.Constraint("Perpendicular", 22, 26),
    Sketcher.Constraint("Horizontal", 4, 3, 5, 3),
    Sketcher.Constraint("Horizontal", 6, 3, 7, 3),
    Sketcher.Constraint("Horizontal", 9, 3, 11, 3),
    Sketcher.Constraint("Horizontal", 11, 3, 12, 3),
    Sketcher.Constraint("Horizontal", 10, 3, 13, 3),
    Sketcher.Constraint("Horizontal", 13, 3, 14, 3),
    Sketcher.Constraint("Horizontal", 17, 3, 18, 3),
    Sketcher.Constraint("Vertical", 4, 3, 6, 3),
    Sketcher.Constraint("Vertical", 5, 3, 7, 3),
    Sketcher.Constraint("Vertical", 9, 3, 10, 3),
    Sketcher.Constraint("Vertical", 11, 3, 13, 3),
    Sketcher.Constraint("Vertical", 12, 3, 14, 3),
    Sketcher.Constraint("Vertical", 6, 3, 17, 3),
    Sketcher.Constraint("Vertical", 7, 3, 18, 3),
    Sketcher.Constraint("Equal", 22, 26),
    Sketcher.Constraint("Diameter", 8, Q("0.2 in")),
    Sketcher.Constraint("Diameter", 16, Q("0.9 in")),
    Sketcher.Constraint("Diameter", 61, Q("11.5 in")),
    Sketcher.Constraint("Diameter", 4, Q("0.27 in")),
    Sketcher.Constraint("DistanceX", 1, 1, 1, 2, Q("14 in")),
    Sketcher.Constraint("Radius", 19, Q("0.14 in")),
    Sketcher.Constraint("Diameter", 66, Q("1.125 in")),
    Sketcher.Constraint("DistanceX", 5, 3, -1, 1, Q("6 in")),
    Sketcher.Constraint("Distance", 20, Q("1.3 in")),
    Sketcher.Constraint("DistanceY", 0, 1, 0, 2, Q("18.25 in")),
    Sketcher.Constraint("DistanceX", 4, 3, -1, 1, Q("6.5 in")),
    Sketcher.Constraint("DistanceY", -1, 1, 4, 3, Q("7.469 in")),
    Sketcher.Constraint("DistanceY", -1, 1, 6, 3, Q("6.969 in")),
    Sketcher.Constraint("DistanceX", 9, 3, -1, 1, Q("4.344 in")),
    Sketcher.Constraint("DistanceY", -1, 1, 9, 3, Q("8.875 in")),
    Sketcher.Constraint("DistanceY", -1, 1, 10, 3, Q("8.375 in")),
    Sketcher.Constraint("DistanceX", 11, 3, -1, 1, Q("3.844 in")),
    Sketcher.Constraint("DistanceX", 12, 3, -1, 1, Q("3.344 in")),
    Sketcher.Constraint("DistanceY", -1, 1, 17, 3, Q("6.469 in")),
    Sketcher.Constraint("DistanceX", 15, 3, -1, 1, Q("105.904202 mm")),
    Sketcher.Constraint("DistanceY", -1, 1, 29, 3, Q("84.25 mm")),
    Sketcher.Constraint("DistanceY", -1, 1, 30, 3, Q("77.25 mm")),
    Sketcher.Constraint("DistanceY", -1, 1, 31, 3, Q("168.5 mm")),
    Sketcher.Constraint("DistanceY", -1, 1, 32, 3, Q("154.5 mm")),
    Sketcher.Constraint("DistanceY", -1, 1, 15, 3, Q("195.863848 mm")),
    Sketcher.Constraint("DistanceX", 16, 3, -1, 1, Q("111.436771 mm")),
    Sketcher.Constraint("DistanceX", 19, 3, -1, 1, Q("119.808011 mm")),
    Sketcher.Constraint("DistanceY", -1, 1, 19, 3, Q("135.233028 mm")),
    Sketcher.Constraint("DistanceX", 23, 3, -1, 1, Q("116.96934 mm")),
    Sketcher.Constraint("DistanceY", -1, 1, 24, 3, Q("166.979082 mm")),
    Sketcher.Constraint("DistanceY", -1, 1, 25, 3, Q("164.140411 mm")),
    Sketcher.Constraint("DistanceX", 27, 3, -1, 1, Q("67.386982 mm")),
    Sketcher.Constraint("DistanceX", 29, 3, -1, 1, Q("145.925281 mm")),
    Sketcher.Constraint("DistanceX", -1, 1, 66, 3, Q("105.605509 mm")),
    Sketcher.Constraint("DistanceX", -1, 1, 67, 3, Q("126.907741 mm")),
    Sketcher.Constraint("DistanceY", 67, 3, -1, 1, Q("148.784392 mm")),
    Sketcher.Constraint("DistanceY", -1, 1, 19, 2, Q("138.699061 mm")),
    Sketcher.Constraint("DistanceX", 8, 3, -1, 1, Q("135.562836 mm")),
    Sketcher.Constraint("DistanceY", -1, 1, 8, 3, Q("177.270352 mm")),
    Sketcher.Constraint("DistanceY", -1, 1, 16, 3, Q("171.737783 mm")),
    Sketcher.Constraint("DistanceY", -1, 1, 23, 3, Q("147.611718 mm")),
    Sketcher.Constraint("DistanceX", 24, 3, -1, 1, Q("87.146215 mm")),
    Sketcher.Constraint("DistanceX", 30, 3, -1, 1, Q("133.800925 mm")),
    Sketcher.Constraint("DistanceY", 66, 3, -1, 1, Q("162.618223 mm")),
    Sketcher.Constraint("DistanceX", -1, 1, 70, 3, Q("84.303276 mm")),
    Sketcher.Constraint("DistanceY", 70, 3, -1, 1, Q("176.452055 mm")),
])
sketch1.setExpression("Constraints[147]", "Params.sketch1_diameter")
sketch1.setExpression("Constraints[148]", "Params.sketch1_diameter2")
sketch1.setExpression("Constraints[149]", "Params.sketch1_diameter3")
sketch1.setExpression("Constraints[150]", "Params.sketch1_diameter4")
sketch1.setExpression("Constraints[151]", "Params.sketch1_width")
pad1 = body.newObject("PartDesign::Pad", "Pad")
pad1.Profile = sketch1
pad1.setExpression("Length", "Params.pad1_length")
pad1.Reversed = True

doc.recompute()
